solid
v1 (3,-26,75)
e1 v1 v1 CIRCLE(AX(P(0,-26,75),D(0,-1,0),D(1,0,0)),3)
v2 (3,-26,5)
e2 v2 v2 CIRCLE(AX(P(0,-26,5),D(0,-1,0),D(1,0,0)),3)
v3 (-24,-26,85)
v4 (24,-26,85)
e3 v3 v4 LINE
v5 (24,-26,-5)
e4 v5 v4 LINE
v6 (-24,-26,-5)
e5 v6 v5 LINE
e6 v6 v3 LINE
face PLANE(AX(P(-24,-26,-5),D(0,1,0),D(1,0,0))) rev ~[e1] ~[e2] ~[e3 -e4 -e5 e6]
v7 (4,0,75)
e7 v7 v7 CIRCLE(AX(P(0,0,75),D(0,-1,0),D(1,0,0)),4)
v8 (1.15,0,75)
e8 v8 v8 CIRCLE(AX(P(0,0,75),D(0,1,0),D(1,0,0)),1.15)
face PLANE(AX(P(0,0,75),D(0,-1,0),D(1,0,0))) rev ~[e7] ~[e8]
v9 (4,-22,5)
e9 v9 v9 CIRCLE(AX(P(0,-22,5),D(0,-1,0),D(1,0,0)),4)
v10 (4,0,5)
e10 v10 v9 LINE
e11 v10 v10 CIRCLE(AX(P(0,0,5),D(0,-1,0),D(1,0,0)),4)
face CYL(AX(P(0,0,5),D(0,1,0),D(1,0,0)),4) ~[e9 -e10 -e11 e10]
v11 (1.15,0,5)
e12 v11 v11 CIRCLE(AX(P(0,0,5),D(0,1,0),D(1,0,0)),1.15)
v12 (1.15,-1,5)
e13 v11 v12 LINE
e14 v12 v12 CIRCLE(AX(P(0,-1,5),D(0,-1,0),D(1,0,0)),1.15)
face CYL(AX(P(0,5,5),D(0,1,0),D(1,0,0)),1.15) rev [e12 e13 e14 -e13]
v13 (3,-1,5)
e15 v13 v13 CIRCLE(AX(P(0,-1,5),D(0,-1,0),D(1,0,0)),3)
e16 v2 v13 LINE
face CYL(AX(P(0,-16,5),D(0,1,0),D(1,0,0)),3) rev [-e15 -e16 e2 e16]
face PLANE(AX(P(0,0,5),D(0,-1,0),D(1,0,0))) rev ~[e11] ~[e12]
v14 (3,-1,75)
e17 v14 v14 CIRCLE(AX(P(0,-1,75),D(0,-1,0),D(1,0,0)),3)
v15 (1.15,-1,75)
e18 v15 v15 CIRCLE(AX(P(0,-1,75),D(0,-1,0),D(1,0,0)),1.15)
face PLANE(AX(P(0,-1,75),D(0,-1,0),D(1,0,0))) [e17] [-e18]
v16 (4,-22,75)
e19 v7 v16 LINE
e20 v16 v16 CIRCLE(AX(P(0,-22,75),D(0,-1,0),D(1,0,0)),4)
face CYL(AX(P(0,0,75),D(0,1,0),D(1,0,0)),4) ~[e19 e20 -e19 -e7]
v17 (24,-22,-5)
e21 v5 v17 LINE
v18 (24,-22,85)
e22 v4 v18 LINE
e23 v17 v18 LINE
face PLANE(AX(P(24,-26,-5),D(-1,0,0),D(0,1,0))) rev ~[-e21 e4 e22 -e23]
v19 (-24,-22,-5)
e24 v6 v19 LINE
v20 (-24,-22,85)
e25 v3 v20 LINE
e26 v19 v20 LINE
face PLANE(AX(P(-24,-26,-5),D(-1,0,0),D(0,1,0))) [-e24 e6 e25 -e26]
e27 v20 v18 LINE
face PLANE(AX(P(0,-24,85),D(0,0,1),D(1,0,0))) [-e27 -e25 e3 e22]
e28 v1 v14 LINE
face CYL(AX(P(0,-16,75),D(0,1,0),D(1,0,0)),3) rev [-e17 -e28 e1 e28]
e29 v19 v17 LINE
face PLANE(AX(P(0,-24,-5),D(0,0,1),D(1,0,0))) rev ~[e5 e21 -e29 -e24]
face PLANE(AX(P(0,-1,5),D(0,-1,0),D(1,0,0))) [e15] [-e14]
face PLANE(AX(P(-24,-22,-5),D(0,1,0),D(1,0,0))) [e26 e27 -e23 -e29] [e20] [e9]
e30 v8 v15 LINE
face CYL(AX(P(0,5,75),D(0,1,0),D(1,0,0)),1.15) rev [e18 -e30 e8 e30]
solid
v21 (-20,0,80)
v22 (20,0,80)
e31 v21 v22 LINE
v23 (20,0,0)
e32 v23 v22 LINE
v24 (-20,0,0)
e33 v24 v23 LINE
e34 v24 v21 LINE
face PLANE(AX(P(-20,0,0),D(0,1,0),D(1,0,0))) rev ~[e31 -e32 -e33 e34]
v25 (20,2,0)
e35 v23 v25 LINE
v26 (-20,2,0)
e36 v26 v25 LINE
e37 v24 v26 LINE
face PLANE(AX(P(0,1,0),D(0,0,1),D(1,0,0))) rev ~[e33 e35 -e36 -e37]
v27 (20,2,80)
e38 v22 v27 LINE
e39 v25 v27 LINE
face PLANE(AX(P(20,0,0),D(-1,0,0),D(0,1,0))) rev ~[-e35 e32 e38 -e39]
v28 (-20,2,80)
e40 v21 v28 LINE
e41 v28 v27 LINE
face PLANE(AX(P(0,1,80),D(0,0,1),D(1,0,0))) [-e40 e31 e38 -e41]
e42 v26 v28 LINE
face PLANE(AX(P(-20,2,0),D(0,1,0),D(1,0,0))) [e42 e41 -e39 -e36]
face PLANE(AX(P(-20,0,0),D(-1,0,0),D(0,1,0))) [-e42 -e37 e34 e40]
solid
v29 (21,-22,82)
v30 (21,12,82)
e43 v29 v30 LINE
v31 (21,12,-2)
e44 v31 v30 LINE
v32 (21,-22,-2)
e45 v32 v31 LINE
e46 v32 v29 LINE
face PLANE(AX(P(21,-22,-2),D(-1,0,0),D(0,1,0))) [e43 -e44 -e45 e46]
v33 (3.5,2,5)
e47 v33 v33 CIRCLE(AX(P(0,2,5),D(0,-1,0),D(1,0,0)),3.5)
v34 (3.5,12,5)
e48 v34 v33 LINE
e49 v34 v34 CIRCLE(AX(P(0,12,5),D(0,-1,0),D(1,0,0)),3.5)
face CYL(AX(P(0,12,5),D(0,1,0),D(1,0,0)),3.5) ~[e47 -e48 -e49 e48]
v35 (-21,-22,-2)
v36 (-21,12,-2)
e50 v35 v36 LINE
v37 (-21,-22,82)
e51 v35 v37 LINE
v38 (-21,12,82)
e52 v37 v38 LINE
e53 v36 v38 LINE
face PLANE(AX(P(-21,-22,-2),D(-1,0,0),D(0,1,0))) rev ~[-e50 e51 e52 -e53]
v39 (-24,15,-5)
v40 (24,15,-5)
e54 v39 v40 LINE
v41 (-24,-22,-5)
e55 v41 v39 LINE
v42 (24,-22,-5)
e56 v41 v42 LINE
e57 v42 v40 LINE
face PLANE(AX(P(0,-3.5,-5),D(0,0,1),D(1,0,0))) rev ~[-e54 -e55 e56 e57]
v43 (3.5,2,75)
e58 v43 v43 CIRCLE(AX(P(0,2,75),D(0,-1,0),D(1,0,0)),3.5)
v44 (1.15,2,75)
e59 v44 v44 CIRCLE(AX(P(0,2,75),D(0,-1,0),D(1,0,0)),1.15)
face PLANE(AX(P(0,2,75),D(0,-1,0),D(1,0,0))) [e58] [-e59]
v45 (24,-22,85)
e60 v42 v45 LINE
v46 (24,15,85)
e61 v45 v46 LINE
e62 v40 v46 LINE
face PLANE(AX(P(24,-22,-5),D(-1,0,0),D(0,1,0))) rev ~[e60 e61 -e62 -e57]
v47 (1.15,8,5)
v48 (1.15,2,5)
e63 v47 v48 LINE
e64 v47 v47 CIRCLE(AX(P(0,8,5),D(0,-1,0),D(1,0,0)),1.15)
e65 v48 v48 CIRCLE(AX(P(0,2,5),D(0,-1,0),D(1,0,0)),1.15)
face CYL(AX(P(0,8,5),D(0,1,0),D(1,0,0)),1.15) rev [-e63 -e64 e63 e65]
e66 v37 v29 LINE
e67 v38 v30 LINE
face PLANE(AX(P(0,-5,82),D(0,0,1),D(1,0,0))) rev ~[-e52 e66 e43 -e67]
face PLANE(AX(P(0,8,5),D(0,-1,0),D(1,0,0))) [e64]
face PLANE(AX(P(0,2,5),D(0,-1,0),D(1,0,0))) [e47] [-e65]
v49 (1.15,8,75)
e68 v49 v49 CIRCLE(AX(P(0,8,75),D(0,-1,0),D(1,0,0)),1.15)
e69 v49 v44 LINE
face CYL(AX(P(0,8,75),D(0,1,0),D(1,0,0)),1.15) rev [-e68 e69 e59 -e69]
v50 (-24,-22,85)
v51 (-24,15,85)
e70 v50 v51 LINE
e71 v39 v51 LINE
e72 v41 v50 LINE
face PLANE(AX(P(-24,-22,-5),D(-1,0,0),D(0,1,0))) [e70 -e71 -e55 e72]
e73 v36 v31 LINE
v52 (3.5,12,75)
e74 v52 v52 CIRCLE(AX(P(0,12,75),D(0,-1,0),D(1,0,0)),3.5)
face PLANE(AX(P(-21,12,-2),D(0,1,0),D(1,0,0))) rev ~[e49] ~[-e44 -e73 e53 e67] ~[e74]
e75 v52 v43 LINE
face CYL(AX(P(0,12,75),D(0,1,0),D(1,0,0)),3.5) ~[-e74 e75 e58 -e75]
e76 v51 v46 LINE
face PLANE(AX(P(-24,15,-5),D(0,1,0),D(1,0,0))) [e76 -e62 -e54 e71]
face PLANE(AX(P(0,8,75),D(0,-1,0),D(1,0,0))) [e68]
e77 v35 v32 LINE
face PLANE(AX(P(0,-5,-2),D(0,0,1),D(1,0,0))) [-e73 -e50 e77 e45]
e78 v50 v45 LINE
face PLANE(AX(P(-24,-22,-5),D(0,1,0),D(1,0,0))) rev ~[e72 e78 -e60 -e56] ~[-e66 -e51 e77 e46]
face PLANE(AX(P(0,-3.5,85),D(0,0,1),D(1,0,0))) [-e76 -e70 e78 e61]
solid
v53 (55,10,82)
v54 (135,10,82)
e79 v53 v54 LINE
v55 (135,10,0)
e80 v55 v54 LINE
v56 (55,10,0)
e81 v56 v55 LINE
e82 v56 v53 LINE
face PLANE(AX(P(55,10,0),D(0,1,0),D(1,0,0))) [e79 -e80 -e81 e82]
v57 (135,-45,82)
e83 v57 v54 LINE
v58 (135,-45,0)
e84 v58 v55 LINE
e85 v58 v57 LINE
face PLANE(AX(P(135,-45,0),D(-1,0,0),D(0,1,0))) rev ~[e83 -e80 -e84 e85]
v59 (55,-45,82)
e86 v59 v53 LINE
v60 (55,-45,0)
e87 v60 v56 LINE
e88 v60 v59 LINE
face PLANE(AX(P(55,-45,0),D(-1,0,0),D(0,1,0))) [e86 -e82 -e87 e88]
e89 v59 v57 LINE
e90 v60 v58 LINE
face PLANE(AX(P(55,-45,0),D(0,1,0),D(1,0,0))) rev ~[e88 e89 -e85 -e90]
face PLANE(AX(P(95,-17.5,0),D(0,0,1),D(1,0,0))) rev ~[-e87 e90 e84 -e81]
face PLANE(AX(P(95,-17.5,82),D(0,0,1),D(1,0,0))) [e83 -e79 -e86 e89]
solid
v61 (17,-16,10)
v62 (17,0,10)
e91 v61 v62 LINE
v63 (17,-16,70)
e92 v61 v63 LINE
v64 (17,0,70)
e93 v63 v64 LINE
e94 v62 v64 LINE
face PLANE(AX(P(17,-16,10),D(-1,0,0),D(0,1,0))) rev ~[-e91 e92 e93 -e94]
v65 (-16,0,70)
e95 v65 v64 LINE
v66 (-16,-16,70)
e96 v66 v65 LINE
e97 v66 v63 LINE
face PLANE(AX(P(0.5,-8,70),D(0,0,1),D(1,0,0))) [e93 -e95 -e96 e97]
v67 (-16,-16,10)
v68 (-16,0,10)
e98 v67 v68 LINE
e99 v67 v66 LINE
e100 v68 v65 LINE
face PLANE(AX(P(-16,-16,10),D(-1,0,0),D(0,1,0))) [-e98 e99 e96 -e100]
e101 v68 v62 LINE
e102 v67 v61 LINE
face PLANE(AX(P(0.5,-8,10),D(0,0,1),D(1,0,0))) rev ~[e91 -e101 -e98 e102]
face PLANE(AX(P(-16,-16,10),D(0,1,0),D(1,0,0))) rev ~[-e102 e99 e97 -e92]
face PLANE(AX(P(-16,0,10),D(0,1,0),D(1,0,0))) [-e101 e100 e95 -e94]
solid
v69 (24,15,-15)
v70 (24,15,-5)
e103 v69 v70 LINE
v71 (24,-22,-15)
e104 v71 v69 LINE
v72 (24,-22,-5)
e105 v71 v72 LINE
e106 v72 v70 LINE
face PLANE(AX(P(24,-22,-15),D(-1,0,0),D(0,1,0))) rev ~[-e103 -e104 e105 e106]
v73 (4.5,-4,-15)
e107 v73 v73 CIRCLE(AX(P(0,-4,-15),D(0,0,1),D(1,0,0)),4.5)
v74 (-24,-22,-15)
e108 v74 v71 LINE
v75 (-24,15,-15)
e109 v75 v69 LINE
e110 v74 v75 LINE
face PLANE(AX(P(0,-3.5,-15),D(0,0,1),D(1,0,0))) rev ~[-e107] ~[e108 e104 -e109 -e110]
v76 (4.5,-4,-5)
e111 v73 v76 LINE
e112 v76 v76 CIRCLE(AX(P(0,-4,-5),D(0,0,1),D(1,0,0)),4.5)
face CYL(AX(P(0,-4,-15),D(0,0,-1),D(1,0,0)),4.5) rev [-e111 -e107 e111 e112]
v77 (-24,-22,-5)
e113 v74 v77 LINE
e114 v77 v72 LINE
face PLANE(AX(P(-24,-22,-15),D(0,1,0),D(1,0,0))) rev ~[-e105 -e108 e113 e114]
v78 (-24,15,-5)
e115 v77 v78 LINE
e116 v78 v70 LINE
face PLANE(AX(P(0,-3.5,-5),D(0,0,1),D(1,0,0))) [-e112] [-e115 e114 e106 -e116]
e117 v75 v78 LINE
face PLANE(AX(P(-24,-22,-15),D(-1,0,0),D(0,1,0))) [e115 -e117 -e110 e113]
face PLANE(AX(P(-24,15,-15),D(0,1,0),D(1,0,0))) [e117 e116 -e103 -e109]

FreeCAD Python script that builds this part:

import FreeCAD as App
import Part
import Sketcher
from FreeCAD import Vector
Q = App.Units.Quantity


def add_polygon(sketch, points):
    """Adds a closed chain of lines whose ends are joined by coincident constraints."""
    first, n = sketch.GeometryCount, len(points)
    for a, b in zip(points, points[1:] + points[:1]):
        sketch.addGeometry(Part.LineSegment(App.Vector(*a, 0), App.Vector(*b, 0)), False)
    for i in range(n):
        sketch.addConstraint(Sketcher.Constraint("Coincident", first + i, 2, first + (i + 1) % n, 1))

doc = App.newDocument("Part")
body = doc.addObject("PartDesign::Body", "Body")

# Sketch on XY plane
sketch1 = body.newObject("Sketcher::SketchObject", "Sketch")
sketch1.AttachmentSupport = (doc.getObject("XY_Plane"), [""])
sketch1.MapMode = "FlatFace"
add_polygon(sketch1, [(-20, 2), (-20, 0), (20, 0), (20, 2)])  # lines 0-3
sketch1.addConstraint([
    Sketcher.Constraint("Vertical", 0),
    Sketcher.Constraint("Horizontal", 1),
    Sketcher.Constraint("Vertical", 2),
    Sketcher.Constraint("Horizontal", 3),
    Sketcher.Constraint("Symmetric", 0, 2, 1, 2, -1, 1),
    Sketcher.Constraint("DistanceX", 1, 1, 1, 2, Q("40 mm")),
    Sketcher.Constraint("DistanceY", 0, 2, 0, 1, Q("2 mm")),
])
pad1 = body.newObject("PartDesign::Pad", "Pad")
pad1.Profile = sketch1
pad1.Length = 80
body2 = doc.addObject("PartDesign::Body", "Body001")

# Sketch on XY plane
sketch2 = body2.newObject("Sketcher::SketchObject", "Sketch001")
sketch2.AttachmentSupport = (doc.getObject("XY_Plane001"), [""])
sketch2.MapMode = "FlatFace"
sketch2.AttachmentOffset = App.Placement(Vector(0, 0, 10), App.Rotation())
add_polygon(sketch2, [(-16, 0), (-16, -16), (17, -16), (17, 0)])  # lines 0-3
sketch2.addConstraint([
    Sketcher.Constraint("Vertical", 0),
    Sketcher.Constraint("Horizontal", 1),
    Sketcher.Constraint("Vertical", 2),
    Sketcher.Constraint("Horizontal", 3),
    Sketcher.Constraint("PointOnObject", 2, 2, -1),
    Sketcher.Constraint("DistanceX", 1, 1, 1, 2, Q("33 mm")),
    Sketcher.Constraint("DistanceY", 0, 2, 0, 1, Q("16 mm")),
    Sketcher.Constraint("DistanceX", 0, 2, -1, 1, Q("16 mm")),
])
pad2 = body2.newObject("PartDesign::Pad", "Pad001")
pad2.Profile = sketch2
pad2.Length = 60
body3 = doc.addObject("PartDesign::Body", "Body002")

# Sketch on XY plane
sketch3 = body3.newObject("Sketcher::SketchObject", "Sketch002")
sketch3.AttachmentSupport = (doc.getObject("XY_Plane002"), [""])
sketch3.MapMode = "FlatFace"
add_polygon(sketch3, [(55, 10), (55, -45), (135, -45), (135, 10)])  # lines 0-3
sketch3.addConstraint([
    Sketcher.Constraint("Vertical", 0),
    Sketcher.Constraint("Horizontal", 1),
    Sketcher.Constraint("Vertical", 2),
    Sketcher.Constraint("Horizontal", 3),
    Sketcher.Constraint("DistanceX", 1, 1, 1, 2, Q("80 mm")),
    Sketcher.Constraint("DistanceY", 0, 2, 0, 1, Q("55 mm")),
    Sketcher.Constraint("DistanceX", -1, 1, 0, 2, Q("55 mm")),
    Sketcher.Constraint("DistanceY", 0, 2, -1, 1, Q("45 mm")),
])
pad3 = body3.newObject("PartDesign::Pad", "Pad002")
pad3.Profile = sketch3
pad3.Length = 82
body4 = doc.addObject("PartDesign::Body", "Body003")

# Sketch on XY plane
sketch4 = body4.newObject("Sketcher::SketchObject", "Sketch003")
sketch4.AttachmentSupport = (doc.getObject("XY_Plane003"), [""])
sketch4.MapMode = "FlatFace"
sketch4.addGeometry(Part.Circle(Vector(0, 0, 0), Vector(0, 0, 1), 3), False)
sketch4.addConstraint([
    Sketcher.Constraint("Coincident", 0, 3, -1, 1),
    Sketcher.Constraint("Diameter", 0, Q("6 mm")),
])
pad4 = body4.newObject("PartDesign::Pad", "Pad003")
pad4.Profile = sketch4
pad4.Length = 10
body5 = doc.addObject("PartDesign::Body", "Body004")
doc.recompute()

body4.Placement = App.Placement(Vector(0, 0, 0), App.Rotation(Vector(1, 0, 0), 90))
boolean = body5.newObject("PartDesign::Boolean", "Boolean")
boolean.Type = "Fuse"
boolean.addObjects([body4])
body6 = doc.addObject("PartDesign::Body", "Body005")
doc.recompute()

body5.Placement = App.Placement(Vector(0, -16, 5), App.Rotation(Vector(0, 0, 1), 0))
boolean2 = body6.newObject("PartDesign::Boolean", "Boolean001")
boolean2.Type = "Fuse"
boolean2.addObjects([body5])
body7 = doc.addObject("PartDesign::Body", "Body006")

# Sketch on XY plane
sketch5 = body7.newObject("Sketcher::SketchObject", "Sketch004")
sketch5.AttachmentSupport = (doc.getObject("XY_Plane006"), [""])
sketch5.MapMode = "FlatFace"
sketch5.addGeometry(Part.Circle(Vector(0, 0, 0), Vector(0, 0, 1), 3), False)
sketch5.addConstraint([
    Sketcher.Constraint("Coincident", 0, 3, -1, 1),
    Sketcher.Constraint("Diameter", 0, Q("6 mm")),
])
pad5 = body7.newObject("PartDesign::Pad", "Pad004")
pad5.Profile = sketch5
pad5.Length = 10
body8 = doc.addObject("PartDesign::Body", "Body007")
doc.recompute()

body7.Placement = App.Placement(Vector(0, 0, 0), App.Rotation(Vector(1, 0, 0), 90))
boolean3 = body8.newObject("PartDesign::Boolean", "Boolean002")
boolean3.Type = "Fuse"
boolean3.addObjects([body7])
body9 = doc.addObject("PartDesign::Body", "Body008")
body9.AllowCompound = True
doc.recompute()

body8.Placement = App.Placement(Vector(0, -16, 75), App.Rotation(Vector(0, 0, 1), 0))
boolean4 = body9.newObject("PartDesign::Boolean", "Boolean003")
boolean4.Type = "Fuse"
boolean4.addObjects([body8])
doc.recompute()

boolean5 = body9.newObject("PartDesign::Boolean", "Boolean004")
boolean5.Type = "Fuse"
boolean5.addObjects([body6])
body10 = doc.addObject("PartDesign::Body", "Body009")

# Sketch on XY plane
sketch6 = body10.newObject("Sketcher::SketchObject", "Sketch005")
sketch6.AttachmentSupport = (doc.getObject("XY_Plane009"), [""])
sketch6.MapMode = "FlatFace"
sketch6.AttachmentOffset = App.Placement(Vector(0, 0, -5), App.Rotation())
add_polygon(sketch6, [(-24, -22), (-24, -26), (24, -26), (24, -22)])  # lines 0-3
sketch6.addConstraint([
    Sketcher.Constraint("Vertical", 0),
    Sketcher.Constraint("Horizontal", 1),
    Sketcher.Constraint("Vertical", 2),
    Sketcher.Constraint("Horizontal", 3),
    Sketcher.Constraint("DistanceX", 1, 1, 1, 2, Q("48 mm")),
    Sketcher.Constraint("DistanceY", 0, 2, 0, 1, Q("4 mm")),
    Sketcher.Constraint("DistanceX", 0, 2, -1, 1, Q("24 mm")),
    Sketcher.Constraint("DistanceY", 0, 2, -1, 1, Q("26 mm")),
])
pad6 = body10.newObject("PartDesign::Pad", "Pad005")
pad6.Profile = sketch6
pad6.Length = 90
doc.recompute()

boolean6 = body10.newObject("PartDesign::Boolean", "Boolean005")
boolean6.Type = "Cut"
boolean6.addObjects([body9])
body11 = doc.addObject("PartDesign::Body", "Body010")

# Sketch on XY plane
sketch7 = body11.newObject("Sketcher::SketchObject", "Sketch006")
sketch7.AttachmentSupport = (doc.getObject("XY_Plane010"), [""])
sketch7.MapMode = "FlatFace"
sketch7.addGeometry(Part.Circle(Vector(0, 0, 0), Vector(0, 0, 1), 3), False)
sketch7.addConstraint([
    Sketcher.Constraint("Coincident", 0, 3, -1, 1),
    Sketcher.Constraint("Diameter", 0, Q("6 mm")),
])
pad7 = body11.newObject("PartDesign::Pad", "Pad006")
pad7.Profile = sketch7
pad7.Length = 22
body12 = doc.addObject("PartDesign::Body", "Body011")
doc.recompute()

body11.Placement = App.Placement(Vector(0, 0, 0), App.Rotation(Vector(1, 0, 0), 90))
boolean7 = body12.newObject("PartDesign::Boolean", "Boolean006")
boolean7.Type = "Fuse"
boolean7.addObjects([body11])
body13 = doc.addObject("PartDesign::Body", "Body012")
doc.recompute()

body12.Placement = App.Placement(Vector(0, -1, 5), App.Rotation(Vector(0, 0, 1), 0))
boolean8 = body13.newObject("PartDesign::Boolean", "Boolean007")
boolean8.Type = "Fuse"
boolean8.addObjects([body12])
body14 = doc.addObject("PartDesign::Body", "Body013")

# Sketch on XY plane
sketch8 = body14.newObject("Sketcher::SketchObject", "Sketch007")
sketch8.AttachmentSupport = (doc.getObject("XY_Plane013"), [""])
sketch8.MapMode = "FlatFace"
sketch8.addGeometry(Part.Circle(Vector(0, 0, 0), Vector(0, 0, 1), 1.1), False)
sketch8.addConstraint([
    Sketcher.Constraint("Coincident", 0, 3, -1, 1),
    Sketcher.Constraint("Diameter", 0, Q("2.3 mm")),
])
pad8 = body14.newObject("PartDesign::Pad", "Pad007")
pad8.Profile = sketch8
pad8.Length = 6
body15 = doc.addObject("PartDesign::Body", "Body014")
doc.recompute()

body14.Placement = App.Placement(Vector(0, 0, 0), App.Rotation(Vector(1, 0, 0), 90))
boolean9 = body15.newObject("PartDesign::Boolean", "Boolean008")
boolean9.Type = "Fuse"
boolean9.addObjects([body14])
body16 = doc.addObject("PartDesign::Body", "Body015")
doc.recompute()

body15.Placement = App.Placement(Vector(0, 5, 5), App.Rotation(Vector(0, 0, 1), 0))
boolean10 = body16.newObject("PartDesign::Boolean", "Boolean009")
boolean10.Type = "Fuse"
boolean10.addObjects([body15])
doc.recompute()

boolean11 = body16.newObject("PartDesign::Boolean", "Boolean010")
boolean11.Type = "Fuse"
boolean11.addObjects([body13])
body17 = doc.addObject("PartDesign::Body", "Body016")

# Sketch on XY plane
sketch9 = body17.newObject("Sketcher::SketchObject", "Sketch008")
sketch9.AttachmentSupport = (doc.getObject("XY_Plane016"), [""])
sketch9.MapMode = "FlatFace"
sketch9.addGeometry(Part.Circle(Vector(0, 0, 0), Vector(0, 0, 1), 4), False)
sketch9.addConstraint([
    Sketcher.Constraint("Coincident", 0, 3, -1, 1),
    Sketcher.Constraint("Diameter", 0, Q("8 mm")),
])
pad9 = body17.newObject("PartDesign::Pad", "Pad008")
pad9.Profile = sketch9
pad9.Length = 22
body18 = doc.addObject("PartDesign::Body", "Body017")
doc.recompute()

body17.Placement = App.Placement(Vector(0, 0, 0), App.Rotation(Vector(1, 0, 0), 90))
boolean12 = body18.newObject("PartDesign::Boolean", "Boolean011")
boolean12.Type = "Fuse"
boolean12.addObjects([body17])
body19 = doc.addObject("PartDesign::Body", "Body018")
doc.recompute()

body18.Placement = App.Placement(Vector(0, 0, 5), App.Rotation(Vector(0, 0, 1), 0))
boolean13 = body19.newObject("PartDesign::Boolean", "Boolean012")
boolean13.Type = "Fuse"
boolean13.addObjects([body18])
doc.recompute()

boolean14 = body19.newObject("PartDesign::Boolean", "Boolean013")
boolean14.Type = "Cut"
boolean14.addObjects([body16])
body20 = doc.addObject("PartDesign::Body", "Body019")

# Sketch on XY plane
sketch10 = body20.newObject("Sketcher::SketchObject", "Sketch009")
sketch10.AttachmentSupport = (doc.getObject("XY_Plane019"), [""])
sketch10.MapMode = "FlatFace"
sketch10.addGeometry(Part.Circle(Vector(0, 0, 0), Vector(0, 0, 1), 3), False)
sketch10.addConstraint([
    Sketcher.Constraint("Coincident", 0, 3, -1, 1),
    Sketcher.Constraint("Diameter", 0, Q("6 mm")),
])
pad10 = body20.newObject("PartDesign::Pad", "Pad009")
pad10.Profile = sketch10
pad10.Length = 22
body21 = doc.addObject("PartDesign::Body", "Body020")
doc.recompute()

body20.Placement = App.Placement(Vector(0, 0, 0), App.Rotation(Vector(1, 0, 0), 90))
boolean15 = body21.newObject("PartDesign::Boolean", "Boolean014")
boolean15.Type = "Fuse"
boolean15.addObjects([body20])
body22 = doc.addObject("PartDesign::Body", "Body021")
doc.recompute()

body21.Placement = App.Placement(Vector(0, -1, 75), App.Rotation(Vector(0, 0, 1), 0))
boolean16 = body22.newObject("PartDesign::Boolean", "Boolean015")
boolean16.Type = "Fuse"
boolean16.addObjects([body21])
body23 = doc.addObject("PartDesign::Body", "Body022")

# Sketch on XY plane
sketch11 = body23.newObject("Sketcher::SketchObject", "Sketch010")
sketch11.AttachmentSupport = (doc.getObject("XY_Plane022"), [""])
sketch11.MapMode = "FlatFace"
sketch11.addGeometry(Part.Circle(Vector(0, 0, 0), Vector(0, 0, 1), 1.1), False)
sketch11.addConstraint([
    Sketcher.Constraint("Coincident", 0, 3, -1, 1),
    Sketcher.Constraint("Diameter", 0, Q("2.3 mm")),
])
pad11 = body23.newObject("PartDesign::Pad", "Pad010")
pad11.Profile = sketch11
pad11.Length = 6
body24 = doc.addObject("PartDesign::Body", "Body023")
doc.recompute()

body23.Placement = App.Placement(Vector(0, 0, 0), App.Rotation(Vector(1, 0, 0), 90))
boolean17 = body24.newObject("PartDesign::Boolean", "Boolean016")
boolean17.Type = "Fuse"
boolean17.addObjects([body23])
body25 = doc.addObject("PartDesign::Body", "Body024")
doc.recompute()

body24.Placement = App.Placement(Vector(0, 5, 75), App.Rotation(Vector(0, 0, 1), 0))
boolean18 = body25.newObject("PartDesign::Boolean", "Boolean017")
boolean18.Type = "Fuse"
boolean18.addObjects([body24])
doc.recompute()

boolean19 = body25.newObject("PartDesign::Boolean", "Boolean018")
boolean19.Type = "Fuse"
boolean19.addObjects([body22])
body26 = doc.addObject("PartDesign::Body", "Body025")

# Sketch on XY plane
sketch12 = body26.newObject("Sketcher::SketchObject", "Sketch011")
sketch12.AttachmentSupport = (doc.getObject("XY_Plane025"), [""])
sketch12.MapMode = "FlatFace"
sketch12.addGeometry(Part.Circle(Vector(0, 0, 0), Vector(0, 0, 1), 4), False)
sketch12.addConstraint([
    Sketcher.Constraint("Coincident", 0, 3, -1, 1),
    Sketcher.Constraint("Diameter", 0, Q("8 mm")),
])
pad12 = body26.newObject("PartDesign::Pad", "Pad011")
pad12.Profile = sketch12
pad12.Length = 22
body27 = doc.addObject("PartDesign::Body", "Body026")
doc.recompute()

body26.Placement = App.Placement(Vector(0, 0, 0), App.Rotation(Vector(1, 0, 0), 90))
boolean20 = body27.newObject("PartDesign::Boolean", "Boolean019")
boolean20.Type = "Fuse"
boolean20.addObjects([body26])
body28 = doc.addObject("PartDesign::Body", "Body027")
body28.AllowCompound = True
doc.recompute()

body27.Placement = App.Placement(Vector(0, 0, 75), App.Rotation(Vector(0, 0, 1), 0))
boolean21 = body28.newObject("PartDesign::Boolean", "Boolean020")
boolean21.Type = "Fuse"
boolean21.addObjects([body27])
doc.recompute()

boolean22 = body28.newObject("PartDesign::Boolean", "Boolean021")
boolean22.Type = "Cut"
boolean22.addObjects([body25])
doc.recompute()

boolean23 = body28.newObject("PartDesign::Boolean", "Boolean022")
boolean23.Type = "Fuse"
boolean23.addObjects([body19])
doc.recompute()

boolean24 = body28.newObject("PartDesign::Boolean", "Boolean023")
boolean24.Type = "Fuse"
boolean24.addObjects([body10])
body29 = doc.addObject("PartDesign::Body", "Body028")

# Sketch on XY plane
sketch13 = body29.newObject("Sketcher::SketchObject", "Sketch012")
sketch13.AttachmentSupport = (doc.getObject("XY_Plane028"), [""])
sketch13.MapMode = "FlatFace"
sketch13.addGeometry(Part.Circle(Vector(0, 0, 0), Vector(0, 0, 1), 1.1), False)
sketch13.addConstraint([
    Sketcher.Constraint("Coincident", 0, 3, -1, 1),
    Sketcher.Constraint("Diameter", 0, Q("2.3 mm")),
])
pad13 = body29.newObject("PartDesign::Pad", "Pad012")
pad13.Profile = sketch13
pad13.Length = 6
body30 = doc.addObject("PartDesign::Body", "Body029")
doc.recompute()

body29.Placement = App.Placement(Vector(0, 0, 0), App.Rotation(Vector(1, 0, 0), 90))
boolean25 = body30.newObject("PartDesign::Boolean", "Boolean024")
boolean25.Type = "Fuse"
boolean25.addObjects([body29])
body31 = doc.addObject("PartDesign::Body", "Body030")
doc.recompute()

body30.Placement = App.Placement(Vector(0, 8, 5), App.Rotation(Vector(0, 0, 1), 0))
boolean26 = body31.newObject("PartDesign::Boolean", "Boolean025")
boolean26.Type = "Fuse"
boolean26.addObjects([body30])
body32 = doc.addObject("PartDesign::Body", "Body031")

# Sketch on XY plane
sketch14 = body32.newObject("Sketcher::SketchObject", "Sketch013")
sketch14.AttachmentSupport = (doc.getObject("XY_Plane031"), [""])
sketch14.MapMode = "FlatFace"
sketch14.addGeometry(Part.Circle(Vector(0, 0, 0), Vector(0, 0, 1), 1.1), False)
sketch14.addConstraint([
    Sketcher.Constraint("Coincident", 0, 3, -1, 1),
    Sketcher.Constraint("Diameter", 0, Q("2.3 mm")),
])
pad14 = body32.newObject("PartDesign::Pad", "Pad013")
pad14.Profile = sketch14
pad14.Length = 6
body33 = doc.addObject("PartDesign::Body", "Body032")
doc.recompute()

body32.Placement = App.Placement(Vector(0, 0, 0), App.Rotation(Vector(1, 0, 0), 90))
boolean27 = body33.newObject("PartDesign::Boolean", "Boolean026")
boolean27.Type = "Fuse"
boolean27.addObjects([body32])
body34 = doc.addObject("PartDesign::Body", "Body033")
body34.AllowCompound = True
doc.recompute()

body33.Placement = App.Placement(Vector(0, 8, 75), App.Rotation(Vector(0, 0, 1), 0))
boolean28 = body34.newObject("PartDesign::Boolean", "Boolean027")
boolean28.Type = "Fuse"
boolean28.addObjects([body33])
doc.recompute()

boolean29 = body34.newObject("PartDesign::Boolean", "Boolean028")
boolean29.Type = "Fuse"
boolean29.addObjects([body31])
body35 = doc.addObject("PartDesign::Body", "Body034")

# Sketch on XY plane
sketch15 = body35.newObject("Sketcher::SketchObject", "Sketch014")
sketch15.AttachmentSupport = (doc.getObject("XY_Plane034"), [""])
sketch15.MapMode = "FlatFace"
sketch15.addGeometry(Part.Circle(Vector(0, 0, 0), Vector(0, 0, 1), 3.5), False)
sketch15.addConstraint([
    Sketcher.Constraint("Coincident", 0, 3, -1, 1),
    Sketcher.Constraint("Diameter", 0, Q("7 mm")),
])
pad15 = body35.newObject("PartDesign::Pad", "Pad014")
pad15.Profile = sketch15
pad15.Length = 10
body36 = doc.addObject("PartDesign::Body", "Body035")
doc.recompute()

body35.Placement = App.Placement(Vector(0, 0, 0), App.Rotation(Vector(1, 0, 0), 90))
boolean30 = body36.newObject("PartDesign::Boolean", "Boolean029")
boolean30.Type = "Fuse"
boolean30.addObjects([body35])
body37 = doc.addObject("PartDesign::Body", "Body036")
doc.recompute()

body36.Placement = App.Placement(Vector(0, 12, 5), App.Rotation(Vector(0, 0, 1), 0))
boolean31 = body37.newObject("PartDesign::Boolean", "Boolean030")
boolean31.Type = "Fuse"
boolean31.addObjects([body36])
body38 = doc.addObject("PartDesign::Body", "Body037")

# Sketch on XY plane
sketch16 = body38.newObject("Sketcher::SketchObject", "Sketch015")
sketch16.AttachmentSupport = (doc.getObject("XY_Plane037"), [""])
sketch16.MapMode = "FlatFace"
sketch16.addGeometry(Part.Circle(Vector(0, 0, 0), Vector(0, 0, 1), 3.5), False)
sketch16.addConstraint([
    Sketcher.Constraint("Coincident", 0, 3, -1, 1),
    Sketcher.Constraint("Diameter", 0, Q("7 mm")),
])
pad16 = body38.newObject("PartDesign::Pad", "Pad015")
pad16.Profile = sketch16
pad16.Length = 10
body39 = doc.addObject("PartDesign::Body", "Body038")
doc.recompute()

body38.Placement = App.Placement(Vector(0, 0, 0), App.Rotation(Vector(1, 0, 0), 90))
boolean32 = body39.newObject("PartDesign::Boolean", "Boolean031")
boolean32.Type = "Fuse"
boolean32.addObjects([body38])
body40 = doc.addObject("PartDesign::Body", "Body039")
body40.AllowCompound = True
doc.recompute()

body39.Placement = App.Placement(Vector(0, 12, 75), App.Rotation(Vector(0, 0, 1), 0))
boolean33 = body40.newObject("PartDesign::Boolean", "Boolean032")
boolean33.Type = "Fuse"
boolean33.addObjects([body39])
doc.recompute()

boolean34 = body40.newObject("PartDesign::Boolean", "Boolean033")
boolean34.Type = "Fuse"
boolean34.addObjects([body37])
doc.recompute()

boolean35 = body40.newObject("PartDesign::Boolean", "Boolean034")
boolean35.Type = "Cut"
boolean35.addObjects([body34])
body41 = doc.addObject("PartDesign::Body", "Body040")

# Sketch on XY plane
sketch17 = body41.newObject("Sketcher::SketchObject", "Sketch016")
sketch17.AttachmentSupport = (doc.getObject("XY_Plane040"), [""])
sketch17.MapMode = "FlatFace"
sketch17.AttachmentOffset = App.Placement(Vector(0, 0, -2), App.Rotation())
add_polygon(sketch17, [(-21, 12), (-21, -22), (21, -22), (21, 12)])  # lines 0-3
sketch17.addConstraint([
    Sketcher.Constraint("Vertical", 0),
    Sketcher.Constraint("Horizontal", 1),
    Sketcher.Constraint("Vertical", 2),
    Sketcher.Constraint("Horizontal", 3),
    Sketcher.Constraint("DistanceX", 1, 1, 1, 2, Q("42 mm")),
    Sketcher.Constraint("DistanceY", 0, 2, 0, 1, Q("34 mm")),
    Sketcher.Constraint("DistanceX", 0, 2, -1, 1, Q("21 mm")),
    Sketcher.Constraint("DistanceY", 0, 2, -1, 1, Q("22 mm")),
])
pad17 = body41.newObject("PartDesign::Pad", "Pad016")
pad17.Profile = sketch17
pad17.Length = 84
body42 = doc.addObject("PartDesign::Body", "Body041")

# Sketch on XY plane
sketch18 = body42.newObject("Sketcher::SketchObject", "Sketch017")
sketch18.AttachmentSupport = (doc.getObject("XY_Plane041"), [""])
sketch18.MapMode = "FlatFace"
sketch18.AttachmentOffset = App.Placement(Vector(0, 0, -5), App.Rotation())
add_polygon(sketch18, [(-24, 15), (-24, -22), (24, -22), (24, 15)])  # lines 0-3
sketch18.addConstraint([
    Sketcher.Constraint("Vertical", 0),
    Sketcher.Constraint("Horizontal", 1),
    Sketcher.Constraint("Vertical", 2),
    Sketcher.Constraint("Horizontal", 3),
    Sketcher.Constraint("DistanceX", 1, 1, 1, 2, Q("48 mm")),
    Sketcher.Constraint("DistanceY", 0, 2, 0, 1, Q("37 mm")),
    Sketcher.Constraint("DistanceX", 0, 2, -1, 1, Q("24 mm")),
    Sketcher.Constraint("DistanceY", 0, 2, -1, 1, Q("22 mm")),
])
pad18 = body42.newObject("PartDesign::Pad", "Pad017")
pad18.Profile = sketch18
pad18.Length = 90
doc.recompute()

boolean36 = body42.newObject("PartDesign::Boolean", "Boolean035")
boolean36.Type = "Cut"
boolean36.addObjects([body41])
doc.recompute()

boolean37 = body42.newObject("PartDesign::Boolean", "Boolean036")
boolean37.Type = "Fuse"
boolean37.addObjects([body40])
body43 = doc.addObject("PartDesign::Body", "Body042")

# Sketch on XY plane
sketch19 = body43.newObject("Sketcher::SketchObject", "Sketch018")
sketch19.AttachmentSupport = (doc.getObject("XY_Plane042"), [""])
sketch19.MapMode = "FlatFace"
sketch19.AttachmentOffset = App.Placement(Vector(0, 0, -15), App.Rotation())
sketch19.addGeometry(Part.Circle(Vector(0, -4, 0), Vector(0, 0, 1), 4.5), False)
sketch19.addConstraint([
    Sketcher.Constraint("PointOnObject", 0, 3, -2),
    Sketcher.Constraint("Diameter", 0, Q("9 mm")),
    Sketcher.Constraint("DistanceY", 0, 3, -1, 1, Q("4 mm")),
])
pad19 = body43.newObject("PartDesign::Pad", "Pad018")
pad19.Profile = sketch19
pad19.Length = 10
body44 = doc.addObject("PartDesign::Body", "Body043")

# Sketch on XY plane
sketch20 = body44.newObject("Sketcher::SketchObject", "Sketch019")
sketch20.AttachmentSupport = (doc.getObject("XY_Plane043"), [""])
sketch20.MapMode = "FlatFace"
sketch20.AttachmentOffset = App.Placement(Vector(0, 0, -15), App.Rotation())
add_polygon(sketch20, [(-24, 15), (-24, -22), (24, -22), (24, 15)])  # lines 0-3
sketch20.addConstraint([
    Sketcher.Constraint("Vertical", 0),
    Sketcher.Constraint("Horizontal", 1),
    Sketcher.Constraint("Vertical", 2),
    Sketcher.Constraint("Horizontal", 3),
    Sketcher.Constraint("DistanceX", 1, 1, 1, 2, Q("48 mm")),
    Sketcher.Constraint("DistanceY", 0, 2, 0, 1, Q("37 mm")),
    Sketcher.Constraint("DistanceX", 0, 2, -1, 1, Q("24 mm")),
    Sketcher.Constraint("DistanceY", 0, 2, -1, 1, Q("22 mm")),
])
pad20 = body44.newObject("PartDesign::Pad", "Pad019")
pad20.Profile = sketch20
pad20.Length = 10
doc.recompute()

boolean38 = body44.newObject("PartDesign::Boolean", "Boolean037")
boolean38.Type = "Cut"
boolean38.addObjects([body43])

doc.recompute()
